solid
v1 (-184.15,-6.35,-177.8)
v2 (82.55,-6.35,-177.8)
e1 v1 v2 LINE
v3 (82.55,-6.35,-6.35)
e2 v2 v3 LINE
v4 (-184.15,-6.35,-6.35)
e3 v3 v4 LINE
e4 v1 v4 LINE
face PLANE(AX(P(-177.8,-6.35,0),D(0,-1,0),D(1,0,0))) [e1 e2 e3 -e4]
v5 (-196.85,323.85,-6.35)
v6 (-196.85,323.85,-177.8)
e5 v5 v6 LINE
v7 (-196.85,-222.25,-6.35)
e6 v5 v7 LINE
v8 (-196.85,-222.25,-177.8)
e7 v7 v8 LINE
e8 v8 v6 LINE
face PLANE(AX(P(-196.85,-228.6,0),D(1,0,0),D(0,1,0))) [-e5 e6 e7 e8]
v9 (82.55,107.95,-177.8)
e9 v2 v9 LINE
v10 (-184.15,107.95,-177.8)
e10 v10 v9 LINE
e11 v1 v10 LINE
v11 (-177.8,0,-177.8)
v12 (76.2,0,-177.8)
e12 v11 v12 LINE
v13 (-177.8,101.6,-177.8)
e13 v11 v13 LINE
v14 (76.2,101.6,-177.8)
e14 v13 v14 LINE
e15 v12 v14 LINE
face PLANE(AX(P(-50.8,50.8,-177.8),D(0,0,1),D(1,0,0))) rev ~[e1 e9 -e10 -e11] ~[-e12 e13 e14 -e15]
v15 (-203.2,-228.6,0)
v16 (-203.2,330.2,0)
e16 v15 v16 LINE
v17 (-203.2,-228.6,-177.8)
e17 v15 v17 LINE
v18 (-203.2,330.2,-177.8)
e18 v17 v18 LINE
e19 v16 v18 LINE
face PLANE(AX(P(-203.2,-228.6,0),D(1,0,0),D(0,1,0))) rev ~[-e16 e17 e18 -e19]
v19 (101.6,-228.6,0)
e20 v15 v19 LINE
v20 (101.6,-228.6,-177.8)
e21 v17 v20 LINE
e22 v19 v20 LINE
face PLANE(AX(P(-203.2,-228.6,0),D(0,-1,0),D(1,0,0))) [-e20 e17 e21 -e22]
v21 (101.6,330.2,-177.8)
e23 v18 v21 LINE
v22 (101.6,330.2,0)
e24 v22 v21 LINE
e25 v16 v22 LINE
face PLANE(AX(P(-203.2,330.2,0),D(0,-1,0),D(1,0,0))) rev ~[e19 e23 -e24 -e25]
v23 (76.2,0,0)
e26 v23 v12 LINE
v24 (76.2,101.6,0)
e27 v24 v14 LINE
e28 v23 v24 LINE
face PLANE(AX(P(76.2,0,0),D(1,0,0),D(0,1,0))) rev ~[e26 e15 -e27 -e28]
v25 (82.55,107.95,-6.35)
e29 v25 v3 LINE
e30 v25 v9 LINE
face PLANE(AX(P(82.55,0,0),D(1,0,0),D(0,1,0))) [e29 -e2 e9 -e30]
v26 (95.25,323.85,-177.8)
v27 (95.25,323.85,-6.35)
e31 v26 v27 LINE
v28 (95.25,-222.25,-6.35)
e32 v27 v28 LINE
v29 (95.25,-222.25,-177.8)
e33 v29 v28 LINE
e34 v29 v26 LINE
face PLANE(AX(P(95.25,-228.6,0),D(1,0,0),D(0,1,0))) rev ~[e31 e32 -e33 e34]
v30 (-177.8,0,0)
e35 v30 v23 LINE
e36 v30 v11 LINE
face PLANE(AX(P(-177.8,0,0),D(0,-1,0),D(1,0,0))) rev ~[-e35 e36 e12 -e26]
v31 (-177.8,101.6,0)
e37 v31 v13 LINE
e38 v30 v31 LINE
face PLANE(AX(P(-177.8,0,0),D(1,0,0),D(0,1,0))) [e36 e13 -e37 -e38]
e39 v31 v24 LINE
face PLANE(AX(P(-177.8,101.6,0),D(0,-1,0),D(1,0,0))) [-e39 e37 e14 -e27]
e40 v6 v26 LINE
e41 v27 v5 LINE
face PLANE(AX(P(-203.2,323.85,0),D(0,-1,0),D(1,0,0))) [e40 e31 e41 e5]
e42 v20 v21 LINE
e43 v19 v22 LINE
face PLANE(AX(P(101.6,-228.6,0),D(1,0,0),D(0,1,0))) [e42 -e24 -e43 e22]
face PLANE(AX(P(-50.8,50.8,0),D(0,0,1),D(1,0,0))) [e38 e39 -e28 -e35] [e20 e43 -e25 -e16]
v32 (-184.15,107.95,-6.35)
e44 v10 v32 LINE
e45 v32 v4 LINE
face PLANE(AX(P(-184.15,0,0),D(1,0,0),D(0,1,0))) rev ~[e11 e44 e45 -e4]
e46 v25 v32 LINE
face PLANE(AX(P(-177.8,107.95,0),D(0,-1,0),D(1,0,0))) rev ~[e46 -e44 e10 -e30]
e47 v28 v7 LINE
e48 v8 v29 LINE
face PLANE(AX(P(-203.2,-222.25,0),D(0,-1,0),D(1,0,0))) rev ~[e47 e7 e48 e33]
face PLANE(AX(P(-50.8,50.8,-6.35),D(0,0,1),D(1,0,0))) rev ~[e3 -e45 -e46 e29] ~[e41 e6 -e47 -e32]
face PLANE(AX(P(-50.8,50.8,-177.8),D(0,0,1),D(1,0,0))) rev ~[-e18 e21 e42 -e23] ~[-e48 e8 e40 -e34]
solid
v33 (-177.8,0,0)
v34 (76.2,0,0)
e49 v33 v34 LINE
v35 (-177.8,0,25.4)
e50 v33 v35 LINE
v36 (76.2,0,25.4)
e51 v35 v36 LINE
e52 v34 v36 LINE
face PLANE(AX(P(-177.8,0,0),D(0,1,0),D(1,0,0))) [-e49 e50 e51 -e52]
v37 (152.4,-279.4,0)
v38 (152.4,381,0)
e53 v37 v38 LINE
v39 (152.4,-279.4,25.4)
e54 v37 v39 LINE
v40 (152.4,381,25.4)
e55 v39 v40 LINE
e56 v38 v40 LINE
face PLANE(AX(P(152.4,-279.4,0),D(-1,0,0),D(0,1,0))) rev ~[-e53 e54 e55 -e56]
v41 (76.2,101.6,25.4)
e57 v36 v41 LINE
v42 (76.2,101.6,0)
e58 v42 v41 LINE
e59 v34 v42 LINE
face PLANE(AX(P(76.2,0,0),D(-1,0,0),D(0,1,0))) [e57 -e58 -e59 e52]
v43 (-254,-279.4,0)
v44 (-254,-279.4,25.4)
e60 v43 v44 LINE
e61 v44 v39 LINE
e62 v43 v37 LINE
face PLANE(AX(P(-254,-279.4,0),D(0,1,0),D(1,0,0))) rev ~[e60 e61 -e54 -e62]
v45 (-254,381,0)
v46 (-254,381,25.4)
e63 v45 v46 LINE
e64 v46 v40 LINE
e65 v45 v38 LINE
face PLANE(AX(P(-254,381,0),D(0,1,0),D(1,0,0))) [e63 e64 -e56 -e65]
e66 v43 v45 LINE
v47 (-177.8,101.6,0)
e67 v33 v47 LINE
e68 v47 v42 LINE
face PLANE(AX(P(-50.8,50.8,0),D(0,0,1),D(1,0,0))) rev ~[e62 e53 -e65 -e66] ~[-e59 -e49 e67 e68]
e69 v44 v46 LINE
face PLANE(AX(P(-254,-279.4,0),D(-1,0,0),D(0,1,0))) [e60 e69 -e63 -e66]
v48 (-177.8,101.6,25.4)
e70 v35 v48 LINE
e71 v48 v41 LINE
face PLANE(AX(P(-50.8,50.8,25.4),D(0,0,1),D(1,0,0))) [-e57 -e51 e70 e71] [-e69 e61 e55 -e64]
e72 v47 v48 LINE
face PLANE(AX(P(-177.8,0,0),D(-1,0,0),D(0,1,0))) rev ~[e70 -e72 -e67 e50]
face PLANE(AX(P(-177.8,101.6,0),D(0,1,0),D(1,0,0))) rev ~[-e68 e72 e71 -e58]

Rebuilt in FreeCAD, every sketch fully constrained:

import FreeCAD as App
import Part
import Sketcher
from FreeCAD import Vector
Q = App.Units.Quantity


def faces_at(feature, points):
    """Names of the faces that lie closest to the given points."""
    faces = feature.Shape.Faces
    near = lambda p: min(range(len(faces)), key=lambda i: faces[i].distToShape(Part.Vertex(*p))[0])
    return sorted({f"Face{near(p) + 1}" for p in points})


def add_polygon(sketch, points):
    """Adds a closed chain of lines whose ends are joined by coincident constraints."""
    first, n = sketch.GeometryCount, len(points)
    for a, b in zip(points, points[1:] + points[:1]):
        sketch.addGeometry(Part.LineSegment(App.Vector(*a, 0), App.Vector(*b, 0)), False)
    for i in range(n):
        sketch.addConstraint(Sketcher.Constraint("Coincident", first + i, 2, first + (i + 1) % n, 1))

doc = App.newDocument("Part")
params = doc.addObject("Spreadsheet::Sheet", "Params")
for row, (alias, value) in enumerate([
    ("sketch1_width", "16 in"),
    ("sketch1_width2", "10 in"),
    ("sketch1_height", "26 in"),
    ("sketch1_height2", "4 in"),
    ("pad1_length", "1 in"),
    ("sketch2_width", "12 in"),
    ("sketch2_width2", "10 in"),
    ("sketch2_height", "22 in"),
    ("sketch2_height2", "4 in"),
    ("pad2_length", "7 in"),
    ("thickness_wall", "0.25 in"),
], start=1):
    params.set(f"A{row}", alias)
    params.set(f"B{row}", "=" + value)
    params.setAlias(f"B{row}", alias)

body = doc.addObject("PartDesign::Body", "Body")

# Sketch on XY plane
sketch1 = doc.addObject("Sketcher::SketchObject", "Sketch")
body.addObject(sketch1)
sketch1.AttachmentSupport = (doc.XY_Plane, [""])
sketch1.MapMode = "FlatFace"
add_polygon(sketch1, [(-254, 381), (-254, -279.4), (152.4, -279.4), (152.4, 381)])  # lines 0-3
add_polygon(sketch1, [(76.2, 0), (-177.8, 0), (-177.8, 101.6), (76.2, 101.6)])  # lines 4-7
sketch1.addConstraint(Sketcher.Constraint("Vertical", 0))
sketch1.addConstraint(Sketcher.Constraint("Horizontal", 1))
sketch1.addConstraint(Sketcher.Constraint("Vertical", 2))
sketch1.addConstraint(Sketcher.Constraint("Horizontal", 3))
sketch1.addConstraint(Sketcher.Constraint("Horizontal", 4))
sketch1.addConstraint(Sketcher.Constraint("Vertical", 5))
sketch1.addConstraint(Sketcher.Constraint("Horizontal", 6))
sketch1.addConstraint(Sketcher.Constraint("Vertical", 7))
sketch1.addConstraint(Sketcher.Constraint("PointOnObject", 4, 2, -1))
sketch1.addConstraint(Sketcher.Constraint("DistanceX", 1, 1, 1, 2, Q("16 in")))
sketch1.addConstraint(Sketcher.Constraint("DistanceX", 4, 2, 4, 1, Q("10 in")))
sketch1.addConstraint(Sketcher.Constraint("DistanceY", 0, 2, 0, 1, Q("26 in")))
sketch1.addConstraint(Sketcher.Constraint("DistanceY", 5, 1, 5, 2, Q("4 in")))
sketch1.addConstraint(Sketcher.Constraint("DistanceX", 0, 2, -1, 1, Q("10 in")))
sketch1.addConstraint(Sketcher.Constraint("DistanceY", 0, 2, -1, 1, Q("11 in")))
sketch1.addConstraint(Sketcher.Constraint("DistanceX", 4, 2, -1, 1, Q("7 in")))
sketch1.setExpression("Constraints[17]", "Params.sketch1_width")
sketch1.setExpression("Constraints[18]", "Params.sketch1_width2")
sketch1.setExpression("Constraints[19]", "Params.sketch1_height")
sketch1.setExpression("Constraints[20]", "Params.sketch1_height2")
pad1 = doc.addObject("PartDesign::Pad", "Pad")
body.addObject(pad1)
pad1.Profile = sketch1
pad1.setExpression("Length", "Params.pad1_length")
body2 = doc.addObject("PartDesign::Body", "Body001")

# Sketch on XY plane
sketch2 = doc.addObject("Sketcher::SketchObject", "Sketch001")
body2.addObject(sketch2)
sketch2.AttachmentSupport = (doc.getObject("XY_Plane001"), [""])
sketch2.MapMode = "FlatFace"
add_polygon(sketch2, [(-203.2, 330.2), (-203.2, -228.6), (101.6, -228.6), (101.6, 330.2)])  # lines 0-3
add_polygon(sketch2, [(76.2, 0), (-177.8, 0), (-177.8, 101.6), (76.2, 101.6)])  # lines 4-7
sketch2.addConstraint(Sketcher.Constraint("Vertical", 0))
sketch2.addConstraint(Sketcher.Constraint("Horizontal", 1))
sketch2.addConstraint(Sketcher.Constraint("Vertical", 2))
sketch2.addConstraint(Sketcher.Constraint("Horizontal", 3))
sketch2.addConstraint(Sketcher.Constraint("Horizontal", 4))
sketch2.addConstraint(Sketcher.Constraint("Vertical", 5))
sketch2.addConstraint(Sketcher.Constraint("Horizontal", 6))
sketch2.addConstraint(Sketcher.Constraint("Vertical", 7))
sketch2.addConstraint(Sketcher.Constraint("PointOnObject", 4, 2, -1))
sketch2.addConstraint(Sketcher.Constraint("DistanceX", 1, 1, 1, 2, Q("12 in")))
sketch2.addConstraint(Sketcher.Constraint("DistanceX", 4, 2, 4, 1, Q("10 in")))
sketch2.addConstraint(Sketcher.Constraint("DistanceY", 0, 2, 0, 1, Q("22 in")))
sketch2.addConstraint(Sketcher.Constraint("DistanceY", 5, 1, 5, 2, Q("4 in")))
sketch2.addConstraint(Sketcher.Constraint("DistanceX", 0, 2, -1, 1, Q("8 in")))
sketch2.addConstraint(Sketcher.Constraint("DistanceY", 0, 2, -1, 1, Q("9 in")))
sketch2.addConstraint(Sketcher.Constraint("DistanceX", 4, 2, -1, 1, Q("7 in")))
sketch2.setExpression("Constraints[17]", "Params.sketch2_width")
sketch2.setExpression("Constraints[18]", "Params.sketch2_width2")
sketch2.setExpression("Constraints[19]", "Params.sketch2_height")
sketch2.setExpression("Constraints[20]", "Params.sketch2_height2")
pad2 = doc.addObject("PartDesign::Pad", "Pad001")
body2.addObject(pad2)
pad2.Profile = sketch2
pad2.setExpression("Length", "Params.pad2_length")
pad2.Reversed = True
doc.recompute()

thickness = doc.addObject("PartDesign::Thickness", "Thickness")
body2.addObject(thickness)
thickness.Base = (pad2, faces_at(pad2, [(-111.76, -60.96, -177.8)]))
thickness.setExpression("Value", "Params.thickness_wall")
thickness.Reversed = True
thickness.Join = "Intersection"

doc.recompute()
